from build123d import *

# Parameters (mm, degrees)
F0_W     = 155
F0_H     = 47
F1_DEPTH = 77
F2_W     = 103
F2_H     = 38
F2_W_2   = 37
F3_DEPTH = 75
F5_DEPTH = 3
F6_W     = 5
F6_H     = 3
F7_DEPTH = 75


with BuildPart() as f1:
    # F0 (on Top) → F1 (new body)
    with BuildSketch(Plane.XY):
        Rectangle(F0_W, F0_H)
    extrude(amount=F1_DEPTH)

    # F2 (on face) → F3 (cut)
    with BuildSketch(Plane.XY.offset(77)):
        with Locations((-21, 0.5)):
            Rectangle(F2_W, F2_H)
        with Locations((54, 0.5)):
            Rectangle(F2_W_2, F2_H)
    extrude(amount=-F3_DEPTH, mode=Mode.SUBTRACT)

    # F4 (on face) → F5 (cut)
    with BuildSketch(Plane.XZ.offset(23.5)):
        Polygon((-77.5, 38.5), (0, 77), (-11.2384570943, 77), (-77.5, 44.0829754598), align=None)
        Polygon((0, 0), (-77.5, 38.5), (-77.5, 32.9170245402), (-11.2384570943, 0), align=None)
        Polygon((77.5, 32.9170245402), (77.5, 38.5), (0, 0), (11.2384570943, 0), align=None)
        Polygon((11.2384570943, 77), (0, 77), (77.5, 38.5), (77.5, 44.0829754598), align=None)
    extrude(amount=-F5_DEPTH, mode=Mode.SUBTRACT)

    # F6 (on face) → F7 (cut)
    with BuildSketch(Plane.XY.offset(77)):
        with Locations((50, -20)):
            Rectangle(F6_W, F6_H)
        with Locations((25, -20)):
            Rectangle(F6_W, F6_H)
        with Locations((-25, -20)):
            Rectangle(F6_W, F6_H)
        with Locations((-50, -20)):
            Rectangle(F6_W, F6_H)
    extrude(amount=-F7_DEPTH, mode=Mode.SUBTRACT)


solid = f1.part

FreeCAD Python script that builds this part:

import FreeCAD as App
import Part
import Sketcher

V = App.Vector

doc = App.newDocument("Part")
body = doc.addObject("PartDesign::Body", "Body")

sketch1 = body.newObject("Sketcher::SketchObject", "Sketch")
sketch1.AttachmentSupport = (doc.getObject("XY_Plane"), [""])
sketch1.MapMode = "FlatFace"
sketch1.addGeometry(Part.LineSegment(V(-78, 24, 0), V(-78, -24, 0)), False)
sketch1.addGeometry(Part.LineSegment(V(-78, -24, 0), V(78, -24, 0)), False)
sketch1.addGeometry(Part.LineSegment(V(78, -24, 0), V(78, 24, 0)), False)
sketch1.addGeometry(Part.LineSegment(V(78, 24, 0), V(-78, 24, 0)), False)
sketch1.addConstraint(Sketcher.Constraint("Coincident", 0, 2, 1, 1))
sketch1.addConstraint(Sketcher.Constraint("Coincident", 1, 2, 2, 1))
sketch1.addConstraint(Sketcher.Constraint("Coincident", 2, 2, 3, 1))
sketch1.addConstraint(Sketcher.Constraint("Coincident", 3, 2, 0, 1))
sketch1.addConstraint(Sketcher.Constraint("Vertical", 0))
sketch1.addConstraint(Sketcher.Constraint("Horizontal", 1))
sketch1.addConstraint(Sketcher.Constraint("Vertical", 2))
sketch1.addConstraint(Sketcher.Constraint("Horizontal", 3))
sketch1.addConstraint(Sketcher.Constraint("Symmetric", 0, 2, 2, 2, -1, 1))
sketch1.addConstraint(Sketcher.Constraint("DistanceX", 1, 1, 1, 2, 155.0))
sketch1.addConstraint(Sketcher.Constraint("DistanceY", 0, 2, 0, 1, 47.0))
pad1 = body.newObject("PartDesign::Pad", "Pad")
pad1.Profile = sketch1
pad1.Length = 77

sketch2 = body.newObject("Sketcher::SketchObject", "Sketch001")
sketch2.AttachmentSupport = (doc.getObject("XY_Plane"), [""])
sketch2.MapMode = "FlatFace"
sketch2.AttachmentOffset = App.Placement(V(0, 0, 77), App.Rotation())
sketch2.addGeometry(Part.LineSegment(V(-72, 20, 0), V(-72, -18, 0)), False)
sketch2.addGeometry(Part.LineSegment(V(-72, -18, 0), V(30, -18, 0)), False)
sketch2.addGeometry(Part.LineSegment(V(30, -18, 0), V(30, 20, 0)), False)
sketch2.addGeometry(Part.LineSegment(V(30, 20, 0), V(-72, 20, 0)), False)
sketch2.addGeometry(Part.LineSegment(V(36, 20, 0), V(36, -18, 0)), False)
sketch2.addGeometry(Part.LineSegment(V(36, -18, 0), V(72, -18, 0)), False)
sketch2.addGeometry(Part.LineSegment(V(72, -18, 0), V(72, 20, 0)), False)
sketch2.addGeometry(Part.LineSegment(V(72, 20, 0), V(36, 20, 0)), False)
sketch2.addConstraint(Sketcher.Constraint("Coincident", 0, 2, 1, 1))
sketch2.addConstraint(Sketcher.Constraint("Coincident", 1, 2, 2, 1))
sketch2.addConstraint(Sketcher.Constraint("Coincident", 2, 2, 3, 1))
sketch2.addConstraint(Sketcher.Constraint("Coincident", 3, 2, 0, 1))
sketch2.addConstraint(Sketcher.Constraint("Coincident", 4, 2, 5, 1))
sketch2.addConstraint(Sketcher.Constraint("Coincident", 5, 2, 6, 1))
sketch2.addConstraint(Sketcher.Constraint("Coincident", 6, 2, 7, 1))
sketch2.addConstraint(Sketcher.Constraint("Coincident", 7, 2, 4, 1))
sketch2.addConstraint(Sketcher.Constraint("Vertical", 0))
sketch2.addConstraint(Sketcher.Constraint("Horizontal", 1))
sketch2.addConstraint(Sketcher.Constraint("Vertical", 2))
sketch2.addConstraint(Sketcher.Constraint("Horizontal", 3))
sketch2.addConstraint(Sketcher.Constraint("Vertical", 4))
sketch2.addConstraint(Sketcher.Constraint("Horizontal", 5))
sketch2.addConstraint(Sketcher.Constraint("Vertical", 6))
sketch2.addConstraint(Sketcher.Constraint("Horizontal", 7))
sketch2.addConstraint(Sketcher.Constraint("Symmetric", 0, 2, 5, 2, -2))
sketch2.addConstraint(Sketcher.Constraint("Horizontal", 3, 2, 6, 2))
sketch2.addConstraint(Sketcher.Constraint("DistanceX", 1, 1, 1, 2, 103.0))
sketch2.addConstraint(Sketcher.Constraint("DistanceX", 5, 1, 5, 2, 37.0))
sketch2.addConstraint(Sketcher.Constraint("DistanceY", 0, 2, 0, 1, 38.0))
sketch2.addConstraint(Sketcher.Constraint("DistanceX", 1, 2, 4, 2, 5.0))
sketch2.addConstraint(Sketcher.Constraint("DistanceY", 0, 2, -1, 1, 18.5))
pocket1 = body.newObject("PartDesign::Pocket", "Pocket")
pocket1.Profile = sketch2
pocket1.Length = 75

sketch3 = body.newObject("Sketcher::SketchObject", "Sketch002")
sketch3.AttachmentSupport = (doc.getObject("XZ_Plane"), [""])
sketch3.MapMode = "FlatFace"
sketch3.AttachmentOffset = App.Placement(V(0, 0, 23.5), App.Rotation())
sketch3.addGeometry(Part.LineSegment(V(-78, 38, 0), V(0, 77, 0)), False)
sketch3.addGeometry(Part.LineSegment(V(0, 77, 0), V(-11, 77, 0)), False)
sketch3.addGeometry(Part.LineSegment(V(-11, 77, 0), V(-78, 44, 0)), False)
sketch3.addGeometry(Part.LineSegment(V(-78, 44, 0), V(-78, 38, 0)), False)
sketch3.addGeometry(Part.LineSegment(V(0, 0, 0), V(-78, 38, 0)), False)
sketch3.addGeometry(Part.LineSegment(V(-78, 38, 0), V(-78, 33, 0)), False)
sketch3.addGeometry(Part.LineSegment(V(-78, 33, 0), V(-11, 0, 0)), False)
sketch3.addGeometry(Part.LineSegment(V(-11, 0, 0), V(0, 0, 0)), False)
sketch3.addGeometry(Part.LineSegment(V(78, 33, 0), V(78, 38, 0)), False)
sketch3.addGeometry(Part.LineSegment(V(78, 38, 0), V(0, 0, 0)), False)
sketch3.addGeometry(Part.LineSegment(V(0, 0, 0), V(11, 0, 0)), False)
sketch3.addGeometry(Part.LineSegment(V(11, 0, 0), V(78, 33, 0)), False)
sketch3.addGeometry(Part.LineSegment(V(11, 77, 0), V(0, 77, 0)), False)
sketch3.addGeometry(Part.LineSegment(V(0, 77, 0), V(78, 38, 0)), False)
sketch3.addGeometry(Part.LineSegment(V(78, 38, 0), V(78, 44, 0)), False)
sketch3.addGeometry(Part.LineSegment(V(78, 44, 0), V(11, 77, 0)), False)
sketch3.addConstraint(Sketcher.Constraint("Coincident", 0, 2, 1, 1))
sketch3.addConstraint(Sketcher.Constraint("Coincident", 1, 2, 2, 1))
sketch3.addConstraint(Sketcher.Constraint("Coincident", 2, 2, 3, 1))
sketch3.addConstraint(Sketcher.Constraint("Coincident", 3, 2, 0, 1))
sketch3.addConstraint(Sketcher.Constraint("Coincident", 4, 2, 5, 1))
sketch3.addConstraint(Sketcher.Constraint("Coincident", 5, 2, 6, 1))
sketch3.addConstraint(Sketcher.Constraint("Coincident", 6, 2, 7, 1))
sketch3.addConstraint(Sketcher.Constraint("Coincident", 7, 2, 4, 1))
sketch3.addConstraint(Sketcher.Constraint("Coincident", 8, 2, 9, 1))
sketch3.addConstraint(Sketcher.Constraint("Coincident", 9, 2, 10, 1))
sketch3.addConstraint(Sketcher.Constraint("Coincident", 10, 2, 11, 1))
sketch3.addConstraint(Sketcher.Constraint("Coincident", 11, 2, 8, 1))
sketch3.addConstraint(Sketcher.Constraint("Coincident", 12, 2, 13, 1))
sketch3.addConstraint(Sketcher.Constraint("Coincident", 13, 2, 14, 1))
sketch3.addConstraint(Sketcher.Constraint("Coincident", 14, 2, 15, 1))
sketch3.addConstraint(Sketcher.Constraint("Coincident", 15, 2, 12, 1))
sketch3.addConstraint(Sketcher.Constraint("Horizontal", 1))
sketch3.addConstraint(Sketcher.Constraint("Vertical", 3))
sketch3.addConstraint(Sketcher.Constraint("Vertical", 5))
sketch3.addConstraint(Sketcher.Constraint("Horizontal", 7))
sketch3.addConstraint(Sketcher.Constraint("Vertical", 8))
sketch3.addConstraint(Sketcher.Constraint("Horizontal", 10))
sketch3.addConstraint(Sketcher.Constraint("Horizontal", 12))
sketch3.addConstraint(Sketcher.Constraint("Vertical", 14))
sketch3.addConstraint(Sketcher.Constraint("Coincident", 7, 2, -1, 1))
sketch3.addConstraint(Sketcher.Constraint("Coincident", 9, 2, -1, 1))
sketch3.addConstraint(Sketcher.Constraint("Coincident", 4, 2, 3, 2))
sketch3.addConstraint(Sketcher.Constraint("Coincident", 12, 2, 0, 2))
sketch3.addConstraint(Sketcher.Constraint("Coincident", 13, 2, 8, 2))
sketch3.addConstraint(Sketcher.Constraint("Symmetric", 3, 2, 8, 2, -2))
sketch3.addConstraint(Sketcher.Constraint("PointOnObject", 0, 2, -2))
sketch3.addConstraint(Sketcher.Constraint("Parallel", 0, 2))
sketch3.addConstraint(Sketcher.Constraint("Parallel", 4, 6))
sketch3.addConstraint(Sketcher.Constraint("Parallel", 2, 9))
sketch3.addConstraint(Sketcher.Constraint("Parallel", 9, 11))
sketch3.addConstraint(Sketcher.Constraint("Parallel", 13, 15))
sketch3.addConstraint(Sketcher.Constraint("Horizontal", 5, 2, 11, 2))
sketch3.addConstraint(Sketcher.Constraint("Horizontal", 2, 2, 14, 2))
sketch3.addConstraint(Sketcher.Constraint("Vertical", 1, 2, 6, 2))
sketch3.addConstraint(Sketcher.Constraint("DistanceY", -1, 1, 0, 2, 77.0))
sketch3.addConstraint(Sketcher.Constraint("DistanceX", 3, 2, 8, 2, 155.0))
sketch3.addConstraint(Sketcher.Constraint("DistanceX", 1, 2, 1, 1, 11.238457))
pocket2 = body.newObject("PartDesign::Pocket", "Pocket001")
pocket2.Profile = sketch3
pocket2.Length = 3

sketch4 = body.newObject("Sketcher::SketchObject", "Sketch003")
sketch4.AttachmentSupport = (doc.getObject("XY_Plane"), [""])
sketch4.MapMode = "FlatFace"
sketch4.AttachmentOffset = App.Placement(V(0, 0, 77), App.Rotation())
sketch4.addGeometry(Part.LineSegment(V(47.5, -18.5, 0), V(47.5, -21.5, 0)), False)
sketch4.addGeometry(Part.LineSegment(V(47.5, -21.5, 0), V(52.5, -21.5, 0)), False)
sketch4.addGeometry(Part.LineSegment(V(52.5, -21.5, 0), V(52.5, -18.5, 0)), False)
sketch4.addGeometry(Part.LineSegment(V(52.5, -18.5, 0), V(47.5, -18.5, 0)), False)
sketch4.addGeometry(Part.LineSegment(V(22.5, -18.5, 0), V(22.5, -21.5, 0)), False)
sketch4.addGeometry(Part.LineSegment(V(22.5, -21.5, 0), V(27.5, -21.5, 0)), False)
sketch4.addGeometry(Part.LineSegment(V(27.5, -21.5, 0), V(27.5, -18.5, 0)), False)
sketch4.addGeometry(Part.LineSegment(V(27.5, -18.5, 0), V(22.5, -18.5, 0)), False)
sketch4.addGeometry(Part.LineSegment(V(-27.5, -18.5, 0), V(-27.5, -21.5, 0)), False)
sketch4.addGeometry(Part.LineSegment(V(-27.5, -21.5, 0), V(-22.5, -21.5, 0)), False)
sketch4.addGeometry(Part.LineSegment(V(-22.5, -21.5, 0), V(-22.5, -18.5, 0)), False)
sketch4.addGeometry(Part.LineSegment(V(-22.5, -18.5, 0), V(-27.5, -18.5, 0)), False)
sketch4.addGeometry(Part.LineSegment(V(-52.5, -18.5, 0), V(-52.5, -21.5, 0)), False)
sketch4.addGeometry(Part.LineSegment(V(-52.5, -21.5, 0), V(-47.5, -21.5, 0)), False)
sketch4.addGeometry(Part.LineSegment(V(-47.5, -21.5, 0), V(-47.5, -18.5, 0)), False)
sketch4.addGeometry(Part.LineSegment(V(-47.5, -18.5, 0), V(-52.5, -18.5, 0)), False)
sketch4.addConstraint(Sketcher.Constraint("Coincident", 0, 2, 1, 1))
sketch4.addConstraint(Sketcher.Constraint("Coincident", 1, 2, 2, 1))
sketch4.addConstraint(Sketcher.Constraint("Coincident", 2, 2, 3, 1))
sketch4.addConstraint(Sketcher.Constraint("Coincident", 3, 2, 0, 1))
sketch4.addConstraint(Sketcher.Constraint("Coincident", 4, 2, 5, 1))
sketch4.addConstraint(Sketcher.Constraint("Coincident", 5, 2, 6, 1))
sketch4.addConstraint(Sketcher.Constraint("Coincident", 6, 2, 7, 1))
sketch4.addConstraint(Sketcher.Constraint("Coincident", 7, 2, 4, 1))
sketch4.addConstraint(Sketcher.Constraint("Coincident", 8, 2, 9, 1))
sketch4.addConstraint(Sketcher.Constraint("Coincident", 9, 2, 10, 1))
sketch4.addConstraint(Sketcher.Constraint("Coincident", 10, 2, 11, 1))
sketch4.addConstraint(Sketcher.Constraint("Coincident", 11, 2, 8, 1))
sketch4.addConstraint(Sketcher.Constraint("Coincident", 12, 2, 13, 1))
sketch4.addConstraint(Sketcher.Constraint("Coincident", 13, 2, 14, 1))
sketch4.addConstraint(Sketcher.Constraint("Coincident", 14, 2, 15, 1))
sketch4.addConstraint(Sketcher.Constraint("Coincident", 15, 2, 12, 1))
sketch4.addConstraint(Sketcher.Constraint("Vertical", 0))
sketch4.addConstraint(Sketcher.Constraint("Horizontal", 1))
sketch4.addConstraint(Sketcher.Constraint("Vertical", 2))
sketch4.addConstraint(Sketcher.Constraint("Horizontal", 3))
sketch4.addConstraint(Sketcher.Constraint("Vertical", 4))
sketch4.addConstraint(Sketcher.Constraint("Horizontal", 5))
sketch4.addConstraint(Sketcher.Constraint("Vertical", 6))
sketch4.addConstraint(Sketcher.Constraint("Horizontal", 7))
sketch4.addConstraint(Sketcher.Constraint("Vertical", 8))
sketch4.addConstraint(Sketcher.Constraint("Horizontal", 9))
sketch4.addConstraint(Sketcher.Constraint("Vertical", 10))
sketch4.addConstraint(Sketcher.Constraint("Horizontal", 11))
sketch4.addConstraint(Sketcher.Constraint("Vertical", 12))
sketch4.addConstraint(Sketcher.Constraint("Horizontal", 13))
sketch4.addConstraint(Sketcher.Constraint("Vertical", 14))
sketch4.addConstraint(Sketcher.Constraint("Horizontal", 15))
sketch4.addConstraint(Sketcher.Constraint("Symmetric", 5, 2, 8, 2, -2))
sketch4.addConstraint(Sketcher.Constraint("Symmetric", 7, 2, 10, 2, -2))
sketch4.addConstraint(Sketcher.Constraint("Symmetric", 1, 2, 12, 2, -2))
sketch4.addConstraint(Sketcher.Constraint("Symmetric", 3, 2, 14, 2, -2))
sketch4.addConstraint(Sketcher.Constraint("Horizontal", 1, 2, 4, 2))
sketch4.addConstraint(Sketcher.Constraint("Horizontal", 3, 2, 6, 2))
sketch4.addConstraint(Sketcher.Constraint("Equal", 3, 5))
sketch4.addConstraint(Sketcher.Constraint("DistanceX", 1, 1, 1, 2, 5.0))
sketch4.addConstraint(Sketcher.Constraint("DistanceY", 0, 2, 0, 1, 3.0))
sketch4.addConstraint(Sketcher.Constraint("DistanceX", 4, 2, 0, 2, 25.0))
sketch4.addConstraint(Sketcher.Constraint("DistanceX", 8, 2, 4, 2, 50.0))
sketch4.addConstraint(Sketcher.Constraint("DistanceY", 0, 2, -1, 1, 21.5))
pocket3 = body.newObject("PartDesign::Pocket", "Pocket002")
pocket3.Profile = sketch4
pocket3.Length = 75

doc.recompute()
